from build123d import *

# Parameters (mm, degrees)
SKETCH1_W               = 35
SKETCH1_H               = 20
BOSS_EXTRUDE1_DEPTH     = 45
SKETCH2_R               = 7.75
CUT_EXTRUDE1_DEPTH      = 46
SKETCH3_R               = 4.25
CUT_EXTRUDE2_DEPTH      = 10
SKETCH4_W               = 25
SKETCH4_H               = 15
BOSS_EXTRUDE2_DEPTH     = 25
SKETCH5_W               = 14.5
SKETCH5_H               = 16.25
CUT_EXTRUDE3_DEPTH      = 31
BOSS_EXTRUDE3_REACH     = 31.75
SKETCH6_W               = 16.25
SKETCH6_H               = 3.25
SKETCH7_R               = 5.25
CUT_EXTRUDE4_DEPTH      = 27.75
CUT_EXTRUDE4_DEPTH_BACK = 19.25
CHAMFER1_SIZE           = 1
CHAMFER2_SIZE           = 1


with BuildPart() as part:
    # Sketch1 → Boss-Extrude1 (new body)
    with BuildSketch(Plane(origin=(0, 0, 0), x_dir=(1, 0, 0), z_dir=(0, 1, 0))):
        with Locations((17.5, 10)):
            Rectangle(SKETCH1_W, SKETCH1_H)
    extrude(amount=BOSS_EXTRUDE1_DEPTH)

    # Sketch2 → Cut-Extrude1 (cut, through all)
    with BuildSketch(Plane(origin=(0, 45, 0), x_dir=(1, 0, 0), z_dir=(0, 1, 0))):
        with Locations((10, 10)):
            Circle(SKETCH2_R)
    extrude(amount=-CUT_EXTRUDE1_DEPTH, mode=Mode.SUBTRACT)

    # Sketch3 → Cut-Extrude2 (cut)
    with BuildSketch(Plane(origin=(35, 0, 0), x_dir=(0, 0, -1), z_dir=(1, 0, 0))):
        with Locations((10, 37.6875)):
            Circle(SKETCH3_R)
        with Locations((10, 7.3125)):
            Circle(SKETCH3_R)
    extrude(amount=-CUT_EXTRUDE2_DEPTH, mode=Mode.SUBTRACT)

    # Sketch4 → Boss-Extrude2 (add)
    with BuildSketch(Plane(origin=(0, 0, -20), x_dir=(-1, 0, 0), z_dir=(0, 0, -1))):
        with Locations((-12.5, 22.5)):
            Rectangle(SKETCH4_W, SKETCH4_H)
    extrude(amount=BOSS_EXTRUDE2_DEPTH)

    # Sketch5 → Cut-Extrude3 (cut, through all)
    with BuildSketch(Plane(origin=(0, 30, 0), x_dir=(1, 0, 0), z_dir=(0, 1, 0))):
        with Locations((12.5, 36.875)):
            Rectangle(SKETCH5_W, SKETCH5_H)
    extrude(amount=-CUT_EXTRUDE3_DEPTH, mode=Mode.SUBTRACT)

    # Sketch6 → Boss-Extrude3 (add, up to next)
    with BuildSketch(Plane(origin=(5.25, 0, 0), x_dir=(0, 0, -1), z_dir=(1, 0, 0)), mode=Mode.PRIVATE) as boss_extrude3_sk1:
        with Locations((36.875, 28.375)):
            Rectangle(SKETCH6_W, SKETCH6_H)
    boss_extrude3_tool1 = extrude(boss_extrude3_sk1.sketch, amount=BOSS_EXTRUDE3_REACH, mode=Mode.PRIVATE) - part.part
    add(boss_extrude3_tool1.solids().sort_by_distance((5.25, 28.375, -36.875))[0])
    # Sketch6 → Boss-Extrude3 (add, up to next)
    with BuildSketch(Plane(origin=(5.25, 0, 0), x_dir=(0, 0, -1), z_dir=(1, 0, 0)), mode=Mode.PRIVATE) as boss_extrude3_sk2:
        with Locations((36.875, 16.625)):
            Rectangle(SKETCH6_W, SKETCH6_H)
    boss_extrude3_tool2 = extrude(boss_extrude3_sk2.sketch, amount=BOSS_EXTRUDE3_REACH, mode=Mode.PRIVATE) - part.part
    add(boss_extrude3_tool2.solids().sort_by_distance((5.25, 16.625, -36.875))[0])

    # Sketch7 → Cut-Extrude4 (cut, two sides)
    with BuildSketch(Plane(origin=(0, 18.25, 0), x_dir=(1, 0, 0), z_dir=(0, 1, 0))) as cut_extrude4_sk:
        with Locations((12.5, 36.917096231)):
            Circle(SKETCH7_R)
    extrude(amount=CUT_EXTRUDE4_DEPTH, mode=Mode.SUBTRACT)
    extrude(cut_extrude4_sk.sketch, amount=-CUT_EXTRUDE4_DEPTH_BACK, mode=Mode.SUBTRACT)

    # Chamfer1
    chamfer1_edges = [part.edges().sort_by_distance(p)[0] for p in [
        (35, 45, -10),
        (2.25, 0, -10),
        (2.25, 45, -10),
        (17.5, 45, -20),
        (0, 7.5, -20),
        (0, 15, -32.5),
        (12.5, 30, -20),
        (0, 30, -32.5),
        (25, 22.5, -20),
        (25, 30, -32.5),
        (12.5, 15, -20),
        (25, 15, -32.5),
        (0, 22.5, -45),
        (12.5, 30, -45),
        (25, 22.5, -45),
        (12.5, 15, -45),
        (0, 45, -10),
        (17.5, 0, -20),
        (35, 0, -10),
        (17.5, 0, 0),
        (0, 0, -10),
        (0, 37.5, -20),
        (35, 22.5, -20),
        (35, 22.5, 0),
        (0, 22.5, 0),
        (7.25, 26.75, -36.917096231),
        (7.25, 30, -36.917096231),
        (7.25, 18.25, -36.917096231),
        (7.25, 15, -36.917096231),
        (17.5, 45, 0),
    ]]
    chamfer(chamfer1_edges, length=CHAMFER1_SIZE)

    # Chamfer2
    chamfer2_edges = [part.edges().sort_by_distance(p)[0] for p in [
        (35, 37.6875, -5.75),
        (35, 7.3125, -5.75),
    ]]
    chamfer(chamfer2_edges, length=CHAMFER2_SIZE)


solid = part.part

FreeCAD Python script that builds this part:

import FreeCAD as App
import Part
import Sketcher
from FreeCAD import Vector
Q = App.Units.Quantity


def edges_at(feature, points):
    """Names of the edges that pass closest to the given points."""
    edges = feature.Shape.Edges
    near = lambda p: min(range(len(edges)), key=lambda i: edges[i].distToShape(Part.Vertex(*p))[0])
    return sorted({f"Edge{near(p) + 1}" for p in points})


def add_polygon(sketch, points):
    """Adds a closed chain of lines whose ends are joined by coincident constraints."""
    first, n = sketch.GeometryCount, len(points)
    for a, b in zip(points, points[1:] + points[:1]):
        sketch.addGeometry(Part.LineSegment(App.Vector(*a, 0), App.Vector(*b, 0)), False)
    for i in range(n):
        sketch.addConstraint(Sketcher.Constraint("Coincident", first + i, 2, first + (i + 1) % n, 1))

doc = App.newDocument("Part")
body = doc.addObject("PartDesign::Body", "Body")

sketch1 = body.newObject("Sketcher::SketchObject", "Sketch")
sketch1.AttachmentSupport = (doc.getObject("XZ_Plane"), [""])
sketch1.MapMode = "FlatFace"
add_polygon(sketch1, [(0, -20), (0, 0), (35, 0), (35, -20)])
sketch1.addConstraint([
    Sketcher.Constraint("Vertical", 0),
    Sketcher.Constraint("Horizontal", 1),
    Sketcher.Constraint("Vertical", 2),
    Sketcher.Constraint("Horizontal", 3),
    Sketcher.Constraint("Coincident", 0, 2, -1, 1),
    Sketcher.Constraint("DistanceX", 1, 1, 1, 2, Q("35 mm")),
    Sketcher.Constraint("DistanceY", 0, 1, 0, 2, Q("20 mm")),
])
pad1 = body.newObject("PartDesign::Pad", "Pad")
pad1.Profile = sketch1
pad1.Length = 45
pad1.Reversed = True

sketch2 = body.newObject("Sketcher::SketchObject", "Sketch001")
sketch2.AttachmentSupport = (doc.getObject("XZ_Plane"), [""])
sketch2.MapMode = "FlatFace"
sketch2.AttachmentOffset = App.Placement(Vector(0, 0, -45), App.Rotation())
sketch2.addGeometry(Part.Circle(Vector(10, -10, 0), Vector(0, 0, 1), 8), False)
sketch2.addConstraint([
    Sketcher.Constraint("Diameter", 0, Q("15.5 mm")),
    Sketcher.Constraint("DistanceX", -1, 1, 0, 3, Q("10 mm")),
    Sketcher.Constraint("DistanceY", 0, 3, -1, 1, Q("10 mm")),
])
pocket1 = body.newObject("PartDesign::Pocket", "Pocket")
pocket1.Profile = sketch2
pocket1.Type = "ThroughAll"
pocket1.Reversed = True

sketch3 = body.newObject("Sketcher::SketchObject", "Sketch002")
sketch3.AttachmentSupport = (doc.getObject("YZ_Plane"), [""])
sketch3.MapMode = "FlatFace"
sketch3.AttachmentOffset = App.Placement(Vector(0, 0, 35), App.Rotation())
sketch3.addGeometry([
    Part.Circle(Vector(37.7, -10, 0), Vector(0, 0, 1), 4.2),
    Part.Circle(Vector(7.3, -10, 0), Vector(0, 0, 1), 4.2),
], False)
sketch3.addConstraint([
    Sketcher.Constraint("Equal", 0, 1),
    Sketcher.Constraint("Horizontal", 0, 3, 1, 3),
    Sketcher.Constraint("Diameter", 0, Q("8.5 mm")),
    Sketcher.Constraint("DistanceY", 0, 3, -1, 1, Q("10 mm")),
    Sketcher.Constraint("DistanceX", 1, 3, 0, 3, Q("30.375 mm")),
    Sketcher.Constraint("DistanceX", -1, 1, 0, 3, Q("37.6875 mm")),
])
pocket2 = body.newObject("PartDesign::Pocket", "Pocket001")
pocket2.Profile = sketch3
pocket2.Length = 10

sketch4 = body.newObject("Sketcher::SketchObject", "Sketch003")
sketch4.AttachmentSupport = (doc.getObject("XY_Plane"), [""])
sketch4.MapMode = "FlatFace"
sketch4.AttachmentOffset = App.Placement(Vector(0, 0, -20), App.Rotation())
add_polygon(sketch4, [(25, 30), (25, 15), (0, 15), (0, 30)])
sketch4.addConstraint([
    Sketcher.Constraint("Vertical", 0),
    Sketcher.Constraint("Horizontal", 1),
    Sketcher.Constraint("Vertical", 2),
    Sketcher.Constraint("Horizontal", 3),
    Sketcher.Constraint("PointOnObject", 1, 2, -2),
    Sketcher.Constraint("DistanceX", 1, 2, 1, 1, Q("25 mm")),
    Sketcher.Constraint("DistanceY", 0, 2, 0, 1, Q("15 mm")),
    Sketcher.Constraint("DistanceY", -1, 1, 0, 2, Q("15 mm")),
])
pad2 = body.newObject("PartDesign::Pad", "Pad001")
pad2.Profile = sketch4
pad2.Length = 25
pad2.Reversed = True

sketch5 = body.newObject("Sketcher::SketchObject", "Sketch004")
sketch5.AttachmentSupport = (doc.getObject("XZ_Plane"), [""])
sketch5.MapMode = "FlatFace"
sketch5.AttachmentOffset = App.Placement(Vector(0, 0, -30), App.Rotation())
add_polygon(sketch5, [(5, -45), (5, -29), (20, -29), (20, -45)])
sketch5.addConstraint([
    Sketcher.Constraint("Vertical", 0),
    Sketcher.Constraint("Horizontal", 1),
    Sketcher.Constraint("Vertical", 2),
    Sketcher.Constraint("Horizontal", 3),
    Sketcher.Constraint("DistanceX", 1, 1, 1, 2, Q("14.5 mm")),
    Sketcher.Constraint("DistanceY", 2, 2, -1, 1, Q("45 mm")),
    Sketcher.Constraint("DistanceY", 0, 1, 0, 2, Q("16.25 mm")),
    Sketcher.Constraint("DistanceX", -1, 1, 0, 2, Q("5.25 mm")),
])
pocket3 = body.newObject("PartDesign::Pocket", "Pocket002")
pocket3.Profile = sketch5
pocket3.Type = "ThroughAll"
pocket3.Reversed = True

sketch6 = body.newObject("Sketcher::SketchObject", "Sketch005")
sketch6.AttachmentSupport = (doc.getObject("YZ_Plane"), [""])
sketch6.MapMode = "FlatFace"
sketch6.AttachmentOffset = App.Placement(Vector(0, 0, 5.25), App.Rotation())
add_polygon(sketch6, [(30, -28.8), (26.8, -28.8), (26.8, -45), (30, -45)])
sketch6.addConstraint([
    Sketcher.Constraint("Horizontal", 0),
    Sketcher.Constraint("Vertical", 1),
    Sketcher.Constraint("Horizontal", 2),
    Sketcher.Constraint("Vertical", 3),
    Sketcher.Constraint("DistanceY", 1, 2, -1, 1, Q("45 mm")),
    Sketcher.Constraint("DistanceX", -1, 1, 2, 2, Q("30 mm")),
    Sketcher.Constraint("DistanceX", 0, 2, 0, 1, Q("3.25 mm")),
    Sketcher.Constraint("DistanceY", 1, 2, 1, 1, Q("16.25 mm")),
])
pad3 = body.newObject("PartDesign::Pad", "Pad002")
pad3.Profile = sketch6
pad3.Type = "UpToFirst"

sketch7 = body.newObject("Sketcher::SketchObject", "Sketch006")
sketch7.AttachmentSupport = (doc.getObject("YZ_Plane"), [""])
sketch7.MapMode = "FlatFace"
sketch7.AttachmentOffset = App.Placement(Vector(0, 0, 5.25), App.Rotation())
add_polygon(sketch7, [(18.2, -28.8), (15, -28.8), (15, -45), (18.2, -45)])
sketch7.addConstraint([
    Sketcher.Constraint("Horizontal", 0),
    Sketcher.Constraint("Vertical", 1),
    Sketcher.Constraint("Horizontal", 2),
    Sketcher.Constraint("Vertical", 3),
    Sketcher.Constraint("DistanceX", -1, 1, 0, 2, Q("15 mm")),
    Sketcher.Constraint("DistanceY", 1, 2, -1, 1, Q("45 mm")),
    Sketcher.Constraint("DistanceX", 0, 2, 0, 1, Q("3.25 mm")),
    Sketcher.Constraint("DistanceY", 1, 2, 1, 1, Q("16.25 mm")),
])
pad4 = body.newObject("PartDesign::Pad", "Pad003")
pad4.Profile = sketch7
pad4.Type = "UpToFirst"

sketch8 = body.newObject("Sketcher::SketchObject", "Sketch007")
sketch8.AttachmentSupport = (doc.getObject("XZ_Plane"), [""])
sketch8.MapMode = "FlatFace"
sketch8.AttachmentOffset = App.Placement(Vector(0, 0, -18.25), App.Rotation())
sketch8.addGeometry(Part.Circle(Vector(12, -37, 0), Vector(0, 0, 1), 5), False)
sketch8.addConstraint([
    Sketcher.Constraint("Diameter", 0, Q("10.5 mm")),
    Sketcher.Constraint("DistanceX", -1, 1, 0, 3, Q("12.5 mm")),
    Sketcher.Constraint("DistanceY", 0, 3, -1, 1, Q("36.917096 mm")),
])
pocket4 = body.newObject("PartDesign::Pocket", "Pocket003")
pocket4.Profile = sketch8
pocket4.Type = "ThroughAll"
pocket4.Midplane = True
doc.recompute()

chamfer = body.newObject("PartDesign::Chamfer", "Chamfer")
chamfer.Base = (pocket4, edges_at(pocket4, [
    (35, 45, -10),
    (2.25, 0, -10),
    (2.25, 45, -10),
    (17.5, 45, -20),
    (0, 7.5, -20),
    (0, 15, -32.5),
    (12.5, 30, -20),
    (0, 30, -32.5),
    (25, 22.5, -20),
    (25, 30, -32.5),
    (12.5, 15, -20),
    (25, 15, -32.5),
    (0, 22.5, -45),
    (12.5, 30, -45),
    (25, 22.5, -45),
    (12.5, 15, -45),
    (0, 45, -10),
    (17.5, 0, -20),
    (35, 0, -10),
    (17.5, 0, 0),
    (0, 0, -10),
    (0, 37.5, -20),
    (35, 22.5, -20),
    (35, 22.5, 0),
    (0, 22.5, 0),
    (7.25, 26.75, -36.917),
    (7.25, 30, -36.917),
    (7.25, 18.25, -36.917),
    (7.25, 15, -36.917),
    (17.5, 45, 0),
]))
chamfer.Size = 1
doc.recompute()

chamfer2 = body.newObject("PartDesign::Chamfer", "Chamfer001")
chamfer2.Base = (chamfer, edges_at(chamfer, [(35, 37.688, -5.75), (35, 7.312, -5.75)]))
chamfer2.Size = 1

doc.recompute()
